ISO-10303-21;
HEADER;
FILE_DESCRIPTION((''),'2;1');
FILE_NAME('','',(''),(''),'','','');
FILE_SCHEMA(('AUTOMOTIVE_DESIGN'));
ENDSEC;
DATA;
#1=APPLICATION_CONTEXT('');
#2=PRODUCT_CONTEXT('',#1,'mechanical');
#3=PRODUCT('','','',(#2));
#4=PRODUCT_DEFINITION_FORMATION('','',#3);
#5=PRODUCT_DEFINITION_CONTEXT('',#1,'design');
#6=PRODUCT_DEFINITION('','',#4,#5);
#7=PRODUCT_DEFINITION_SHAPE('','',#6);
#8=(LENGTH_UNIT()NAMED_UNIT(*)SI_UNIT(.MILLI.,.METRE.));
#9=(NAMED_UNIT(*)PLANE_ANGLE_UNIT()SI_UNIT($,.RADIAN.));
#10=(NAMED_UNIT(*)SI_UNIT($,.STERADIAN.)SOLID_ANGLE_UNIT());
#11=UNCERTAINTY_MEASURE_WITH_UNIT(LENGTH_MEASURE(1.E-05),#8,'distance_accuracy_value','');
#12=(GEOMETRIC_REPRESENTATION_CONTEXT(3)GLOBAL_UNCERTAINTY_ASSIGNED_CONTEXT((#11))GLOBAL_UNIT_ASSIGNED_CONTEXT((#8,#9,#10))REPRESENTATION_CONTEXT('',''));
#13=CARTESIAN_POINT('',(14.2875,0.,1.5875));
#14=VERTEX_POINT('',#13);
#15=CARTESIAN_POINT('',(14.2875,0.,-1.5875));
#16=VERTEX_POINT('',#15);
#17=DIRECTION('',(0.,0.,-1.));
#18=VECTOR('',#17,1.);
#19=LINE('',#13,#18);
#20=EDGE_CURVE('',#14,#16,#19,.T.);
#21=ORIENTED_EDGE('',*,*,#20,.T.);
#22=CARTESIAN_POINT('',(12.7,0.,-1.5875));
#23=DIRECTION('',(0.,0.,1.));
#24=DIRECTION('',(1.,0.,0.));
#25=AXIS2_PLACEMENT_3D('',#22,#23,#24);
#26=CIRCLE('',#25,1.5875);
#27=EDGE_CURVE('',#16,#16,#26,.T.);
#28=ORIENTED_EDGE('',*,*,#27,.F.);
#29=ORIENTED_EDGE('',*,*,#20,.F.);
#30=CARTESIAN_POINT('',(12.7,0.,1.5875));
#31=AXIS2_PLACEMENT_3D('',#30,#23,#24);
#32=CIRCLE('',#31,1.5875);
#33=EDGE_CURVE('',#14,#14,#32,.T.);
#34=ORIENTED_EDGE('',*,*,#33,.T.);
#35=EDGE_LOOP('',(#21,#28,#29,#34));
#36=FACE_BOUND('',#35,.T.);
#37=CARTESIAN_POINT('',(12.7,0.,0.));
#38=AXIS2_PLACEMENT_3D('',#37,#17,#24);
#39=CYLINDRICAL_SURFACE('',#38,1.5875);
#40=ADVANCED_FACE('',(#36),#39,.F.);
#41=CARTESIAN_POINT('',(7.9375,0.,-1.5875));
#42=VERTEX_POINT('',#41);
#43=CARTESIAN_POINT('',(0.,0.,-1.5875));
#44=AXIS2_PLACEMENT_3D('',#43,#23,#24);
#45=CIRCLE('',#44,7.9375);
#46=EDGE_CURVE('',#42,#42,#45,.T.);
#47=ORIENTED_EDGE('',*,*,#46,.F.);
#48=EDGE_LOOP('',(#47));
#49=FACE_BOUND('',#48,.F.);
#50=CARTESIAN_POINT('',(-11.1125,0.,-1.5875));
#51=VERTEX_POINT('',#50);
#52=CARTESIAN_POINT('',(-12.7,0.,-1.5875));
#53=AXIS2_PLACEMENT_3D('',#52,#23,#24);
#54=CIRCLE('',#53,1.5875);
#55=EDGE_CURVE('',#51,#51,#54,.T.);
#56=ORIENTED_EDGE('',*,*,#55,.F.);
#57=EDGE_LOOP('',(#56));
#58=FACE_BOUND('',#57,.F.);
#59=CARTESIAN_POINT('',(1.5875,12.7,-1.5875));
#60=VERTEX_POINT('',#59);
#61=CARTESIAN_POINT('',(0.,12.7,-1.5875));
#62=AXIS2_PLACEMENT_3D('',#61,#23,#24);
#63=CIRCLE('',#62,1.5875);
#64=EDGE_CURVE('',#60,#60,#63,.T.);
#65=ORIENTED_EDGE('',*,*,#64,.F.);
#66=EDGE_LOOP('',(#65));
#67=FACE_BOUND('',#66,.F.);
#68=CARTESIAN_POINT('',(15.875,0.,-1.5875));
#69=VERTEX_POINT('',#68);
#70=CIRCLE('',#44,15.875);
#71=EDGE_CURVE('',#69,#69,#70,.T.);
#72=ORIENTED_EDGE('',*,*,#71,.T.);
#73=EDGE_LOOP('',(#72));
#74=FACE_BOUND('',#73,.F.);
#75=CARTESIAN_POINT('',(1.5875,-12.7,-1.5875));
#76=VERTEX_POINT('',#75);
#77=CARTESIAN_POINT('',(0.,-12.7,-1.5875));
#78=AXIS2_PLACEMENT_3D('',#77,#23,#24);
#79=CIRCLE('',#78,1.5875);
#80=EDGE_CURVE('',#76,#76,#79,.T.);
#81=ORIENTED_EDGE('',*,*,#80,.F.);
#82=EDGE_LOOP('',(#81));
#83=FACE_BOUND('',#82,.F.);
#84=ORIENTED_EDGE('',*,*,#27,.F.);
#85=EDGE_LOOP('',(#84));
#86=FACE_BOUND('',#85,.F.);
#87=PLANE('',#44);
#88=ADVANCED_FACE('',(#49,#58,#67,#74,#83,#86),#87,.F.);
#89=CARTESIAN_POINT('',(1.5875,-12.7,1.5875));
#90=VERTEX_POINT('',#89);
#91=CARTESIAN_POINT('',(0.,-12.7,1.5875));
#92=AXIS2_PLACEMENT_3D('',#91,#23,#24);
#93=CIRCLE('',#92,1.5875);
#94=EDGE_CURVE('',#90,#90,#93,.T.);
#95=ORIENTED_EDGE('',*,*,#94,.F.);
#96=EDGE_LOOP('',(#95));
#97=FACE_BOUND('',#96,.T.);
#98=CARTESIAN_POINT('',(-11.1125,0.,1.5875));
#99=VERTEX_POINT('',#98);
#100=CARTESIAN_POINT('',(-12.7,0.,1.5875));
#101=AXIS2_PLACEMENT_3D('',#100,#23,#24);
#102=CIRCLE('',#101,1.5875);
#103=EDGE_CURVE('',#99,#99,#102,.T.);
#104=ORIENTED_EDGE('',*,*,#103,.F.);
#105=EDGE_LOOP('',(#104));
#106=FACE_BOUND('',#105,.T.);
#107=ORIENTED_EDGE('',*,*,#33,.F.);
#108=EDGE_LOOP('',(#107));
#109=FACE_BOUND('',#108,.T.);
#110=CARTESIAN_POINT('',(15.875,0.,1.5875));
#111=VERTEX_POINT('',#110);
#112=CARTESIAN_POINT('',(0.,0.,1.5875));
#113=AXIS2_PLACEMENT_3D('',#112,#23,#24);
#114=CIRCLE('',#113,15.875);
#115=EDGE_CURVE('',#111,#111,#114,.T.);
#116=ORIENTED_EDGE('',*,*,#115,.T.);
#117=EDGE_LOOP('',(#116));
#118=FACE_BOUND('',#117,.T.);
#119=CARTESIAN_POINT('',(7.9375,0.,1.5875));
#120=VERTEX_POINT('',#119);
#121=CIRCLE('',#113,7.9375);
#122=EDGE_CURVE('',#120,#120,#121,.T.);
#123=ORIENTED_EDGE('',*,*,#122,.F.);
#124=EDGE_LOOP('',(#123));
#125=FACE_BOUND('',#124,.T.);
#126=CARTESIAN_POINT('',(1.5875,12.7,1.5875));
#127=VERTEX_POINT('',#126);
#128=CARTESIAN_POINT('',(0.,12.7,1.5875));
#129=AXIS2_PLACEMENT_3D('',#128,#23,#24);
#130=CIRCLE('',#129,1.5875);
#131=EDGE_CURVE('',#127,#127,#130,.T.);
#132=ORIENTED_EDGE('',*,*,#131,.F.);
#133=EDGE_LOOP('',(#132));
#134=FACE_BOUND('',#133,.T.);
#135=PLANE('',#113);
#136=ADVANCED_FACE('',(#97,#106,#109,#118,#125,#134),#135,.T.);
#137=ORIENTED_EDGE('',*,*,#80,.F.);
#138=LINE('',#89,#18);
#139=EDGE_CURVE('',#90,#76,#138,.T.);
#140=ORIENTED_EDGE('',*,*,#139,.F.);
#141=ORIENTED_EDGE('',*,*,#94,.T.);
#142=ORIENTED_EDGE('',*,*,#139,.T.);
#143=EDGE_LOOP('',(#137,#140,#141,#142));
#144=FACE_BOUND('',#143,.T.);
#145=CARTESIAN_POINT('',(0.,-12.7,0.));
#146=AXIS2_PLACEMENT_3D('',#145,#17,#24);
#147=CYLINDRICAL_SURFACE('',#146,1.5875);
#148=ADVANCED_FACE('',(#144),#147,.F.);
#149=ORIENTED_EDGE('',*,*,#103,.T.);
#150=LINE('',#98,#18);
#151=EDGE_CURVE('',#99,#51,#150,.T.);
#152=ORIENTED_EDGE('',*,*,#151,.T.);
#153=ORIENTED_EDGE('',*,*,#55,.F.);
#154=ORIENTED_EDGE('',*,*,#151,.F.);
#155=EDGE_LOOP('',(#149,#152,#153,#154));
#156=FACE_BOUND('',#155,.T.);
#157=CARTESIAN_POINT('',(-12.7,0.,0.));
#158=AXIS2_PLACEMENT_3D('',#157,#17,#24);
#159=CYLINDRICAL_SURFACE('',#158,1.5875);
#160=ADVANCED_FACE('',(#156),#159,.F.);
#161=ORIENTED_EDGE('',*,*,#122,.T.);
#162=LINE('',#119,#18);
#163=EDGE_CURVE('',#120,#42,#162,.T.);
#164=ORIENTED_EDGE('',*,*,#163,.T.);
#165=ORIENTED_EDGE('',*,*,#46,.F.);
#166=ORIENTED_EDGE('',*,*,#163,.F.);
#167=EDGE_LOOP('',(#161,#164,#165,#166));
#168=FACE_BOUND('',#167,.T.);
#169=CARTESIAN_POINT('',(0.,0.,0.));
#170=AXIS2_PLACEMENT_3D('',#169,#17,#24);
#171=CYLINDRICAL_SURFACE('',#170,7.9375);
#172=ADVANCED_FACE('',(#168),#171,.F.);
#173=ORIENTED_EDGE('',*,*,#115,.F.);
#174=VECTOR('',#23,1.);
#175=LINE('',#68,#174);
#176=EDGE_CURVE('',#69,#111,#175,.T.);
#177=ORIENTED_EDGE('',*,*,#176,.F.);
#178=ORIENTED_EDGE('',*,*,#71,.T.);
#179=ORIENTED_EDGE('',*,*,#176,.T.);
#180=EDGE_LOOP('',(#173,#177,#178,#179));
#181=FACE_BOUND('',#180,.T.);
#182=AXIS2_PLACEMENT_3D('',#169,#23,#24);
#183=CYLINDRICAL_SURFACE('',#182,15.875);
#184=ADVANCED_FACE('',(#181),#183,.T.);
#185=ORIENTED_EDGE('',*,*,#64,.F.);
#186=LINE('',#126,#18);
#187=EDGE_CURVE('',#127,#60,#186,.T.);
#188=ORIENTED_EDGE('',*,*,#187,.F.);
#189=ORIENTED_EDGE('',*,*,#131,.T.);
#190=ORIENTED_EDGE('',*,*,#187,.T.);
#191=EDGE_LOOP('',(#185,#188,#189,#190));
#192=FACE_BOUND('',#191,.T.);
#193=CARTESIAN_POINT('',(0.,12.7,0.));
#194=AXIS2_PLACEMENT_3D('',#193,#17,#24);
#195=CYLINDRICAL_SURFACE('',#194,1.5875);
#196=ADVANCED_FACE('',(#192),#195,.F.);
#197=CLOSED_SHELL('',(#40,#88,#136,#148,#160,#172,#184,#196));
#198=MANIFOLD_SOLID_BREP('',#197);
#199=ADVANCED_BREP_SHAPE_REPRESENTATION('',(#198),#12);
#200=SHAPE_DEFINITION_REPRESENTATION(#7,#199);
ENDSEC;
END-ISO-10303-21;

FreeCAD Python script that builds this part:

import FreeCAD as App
import Part
import Sketcher
Q = App.Units.Quantity

doc = App.newDocument("Part")
body = doc.addObject("PartDesign::Body", "Body")

sketch1 = doc.addObject("Sketcher::SketchObject", "Sketch")
body.addObject(sketch1)
sketch1.AttachmentSupport = (doc.XY_Plane, [""])
sketch1.MapMode = "FlatFace"
sketch1.addGeometry(Part.Circle(App.Vector(0, 0, 0), App.Vector(0, 0, 1), 15.9), False)
sketch1.addGeometry(Part.Circle(App.Vector(0, -12.7, 0), App.Vector(0, 0, 1), 1.6), False)
sketch1.addGeometry(Part.Circle(App.Vector(0, 0, 0), App.Vector(0, 0, 1), 7.9), False)
sketch1.addGeometry(Part.Circle(App.Vector(-12.7, 0, 0), App.Vector(0, 0, 1), 1.6), False)
sketch1.addGeometry(Part.Circle(App.Vector(12.7, 0, 0), App.Vector(0, 0, 1), 1.6), False)
sketch1.addGeometry(Part.Circle(App.Vector(0, 12.7, 0), App.Vector(0, 0, 1), 1.6), False)
sketch1.addConstraint(Sketcher.Constraint("Coincident", 0, 3, -1, 1))
sketch1.addConstraint(Sketcher.Constraint("Coincident", 2, 3, -1, 1))
sketch1.addConstraint(Sketcher.Constraint("Equal", 1, 3))
sketch1.addConstraint(Sketcher.Constraint("Equal", 3, 4))
sketch1.addConstraint(Sketcher.Constraint("Equal", 4, 5))
sketch1.addConstraint(Sketcher.Constraint("Symmetric", 3, 3, 4, 3, -1, 1))
sketch1.addConstraint(Sketcher.Constraint("Symmetric", 1, 3, 5, 3, -1, 1))
sketch1.addConstraint(Sketcher.Constraint("PointOnObject", 1, 3, -2))
sketch1.addConstraint(Sketcher.Constraint("PointOnObject", 3, 3, -1))
sketch1.addConstraint(Sketcher.Constraint("Diameter", 0, Q("1.25 in")))
sketch1.addConstraint(Sketcher.Constraint("Diameter", 1, Q("0.125 in")))
sketch1.addConstraint(Sketcher.Constraint("Diameter", 2, Q("0.625 in")))
sketch1.addConstraint(Sketcher.Constraint("DistanceX", 3, 3, 4, 3, Q("1 in")))
sketch1.addConstraint(Sketcher.Constraint("DistanceY", 1, 3, 5, 3, Q("1 in")))
pad1 = doc.addObject("PartDesign::Pad", "Pad")
body.addObject(pad1)
pad1.Profile = sketch1
pad1.Length = Q("0.125 in")
pad1.Midplane = True

doc.recompute()
